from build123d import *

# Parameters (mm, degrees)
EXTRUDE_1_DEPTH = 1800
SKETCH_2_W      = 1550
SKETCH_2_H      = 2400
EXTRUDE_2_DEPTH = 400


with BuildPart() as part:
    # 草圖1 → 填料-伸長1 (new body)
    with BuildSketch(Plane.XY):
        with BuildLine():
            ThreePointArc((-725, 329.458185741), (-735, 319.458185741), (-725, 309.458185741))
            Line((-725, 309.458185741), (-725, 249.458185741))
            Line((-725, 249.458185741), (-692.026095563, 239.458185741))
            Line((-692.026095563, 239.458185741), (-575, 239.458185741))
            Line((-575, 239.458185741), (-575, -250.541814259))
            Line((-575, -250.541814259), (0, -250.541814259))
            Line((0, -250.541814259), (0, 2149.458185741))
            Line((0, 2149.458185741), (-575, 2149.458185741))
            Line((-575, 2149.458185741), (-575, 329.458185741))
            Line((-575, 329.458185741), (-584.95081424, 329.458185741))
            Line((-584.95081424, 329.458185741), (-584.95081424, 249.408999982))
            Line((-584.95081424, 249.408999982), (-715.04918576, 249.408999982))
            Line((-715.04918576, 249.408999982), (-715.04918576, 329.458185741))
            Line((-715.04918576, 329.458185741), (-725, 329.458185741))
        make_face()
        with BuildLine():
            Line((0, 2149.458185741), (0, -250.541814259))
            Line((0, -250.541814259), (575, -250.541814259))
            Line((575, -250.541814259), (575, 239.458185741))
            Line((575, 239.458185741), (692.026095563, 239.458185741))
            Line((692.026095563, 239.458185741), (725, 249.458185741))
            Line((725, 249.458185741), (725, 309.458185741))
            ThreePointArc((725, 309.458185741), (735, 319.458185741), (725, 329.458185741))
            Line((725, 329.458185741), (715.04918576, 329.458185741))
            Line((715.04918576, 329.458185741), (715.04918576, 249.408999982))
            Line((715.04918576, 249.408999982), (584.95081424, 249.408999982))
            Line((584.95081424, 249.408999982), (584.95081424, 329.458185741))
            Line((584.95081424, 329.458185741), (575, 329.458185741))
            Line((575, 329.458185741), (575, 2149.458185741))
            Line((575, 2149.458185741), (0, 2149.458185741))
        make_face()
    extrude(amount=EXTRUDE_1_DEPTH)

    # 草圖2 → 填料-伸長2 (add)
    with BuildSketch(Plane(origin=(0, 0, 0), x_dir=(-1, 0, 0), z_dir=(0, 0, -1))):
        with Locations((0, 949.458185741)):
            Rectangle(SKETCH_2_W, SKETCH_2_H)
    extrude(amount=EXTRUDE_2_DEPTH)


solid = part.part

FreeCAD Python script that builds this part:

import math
import FreeCAD as App
import Part
import Sketcher
from FreeCAD import Vector
Q = App.Units.Quantity

doc = App.newDocument("Part")
body = doc.addObject("PartDesign::Body", "Body")

sketch1 = body.newObject("Sketcher::SketchObject", "Sketch")
sketch1.AttachmentSupport = (doc.getObject("XY_Plane"), [""])
sketch1.MapMode = "FlatFace"
sketch1.addGeometry([
    Part.ArcOfCircle(Part.Circle(Vector(-725, 319, 0), Vector(0, 0, 1), 10), math.radians(90), math.radians(270)),
    Part.LineSegment(Vector(-725, 309, 0), Vector(-725, 249, 0)),
    Part.LineSegment(Vector(-725, 249, 0), Vector(-692, 239, 0)),
    Part.LineSegment(Vector(-692, 239, 0), Vector(-575, 239, 0)),
    Part.LineSegment(Vector(-575, 239, 0), Vector(-575, -251, 0)),
    Part.LineSegment(Vector(-575, -251, 0), Vector(575, -251, 0)),
    Part.LineSegment(Vector(575, -251, 0), Vector(575, 239, 0)),
    Part.LineSegment(Vector(575, 239, 0), Vector(692, 239, 0)),
    Part.LineSegment(Vector(692, 239, 0), Vector(725, 249, 0)),
    Part.LineSegment(Vector(725, 249, 0), Vector(725, 309, 0)),
    Part.ArcOfCircle(Part.Circle(Vector(725, 319, 0), Vector(0, 0, 1), 10), math.radians(-90), math.radians(90)),
    Part.LineSegment(Vector(725, 329, 0), Vector(715, 329, 0)),
    Part.LineSegment(Vector(715, 329, 0), Vector(715, 249, 0)),
    Part.LineSegment(Vector(715, 249, 0), Vector(585, 249, 0)),
    Part.LineSegment(Vector(585, 249, 0), Vector(585, 329, 0)),
    Part.LineSegment(Vector(585, 329, 0), Vector(575, 329, 0)),
    Part.LineSegment(Vector(575, 329, 0), Vector(575, 2149, 0)),
    Part.LineSegment(Vector(575, 2149, 0), Vector(-575, 2149, 0)),
    Part.LineSegment(Vector(-575, 2149, 0), Vector(-575, 329, 0)),
    Part.LineSegment(Vector(-575, 329, 0), Vector(-585, 329, 0)),
    Part.LineSegment(Vector(-585, 329, 0), Vector(-585, 249, 0)),
    Part.LineSegment(Vector(-585, 249, 0), Vector(-715, 249, 0)),
    Part.LineSegment(Vector(-715, 249, 0), Vector(-715, 329, 0)),
    Part.LineSegment(Vector(-715, 329, 0), Vector(-725, 329, 0)),
], False)
sketch1.addConstraint([
    Sketcher.Constraint("Coincident", 0, 2, 1, 1),
    Sketcher.Constraint("Coincident", 1, 2, 2, 1),
    Sketcher.Constraint("Coincident", 2, 2, 3, 1),
    Sketcher.Constraint("Coincident", 3, 2, 4, 1),
    Sketcher.Constraint("Coincident", 4, 2, 5, 1),
    Sketcher.Constraint("Coincident", 5, 2, 6, 1),
    Sketcher.Constraint("Coincident", 6, 2, 7, 1),
    Sketcher.Constraint("Coincident", 7, 2, 8, 1),
    Sketcher.Constraint("Coincident", 8, 2, 9, 1),
    Sketcher.Constraint("Coincident", 9, 2, 10, 1),
    Sketcher.Constraint("Tangent", 10, 2, 11, 1),
    Sketcher.Constraint("Coincident", 11, 2, 12, 1),
    Sketcher.Constraint("Coincident", 12, 2, 13, 1),
    Sketcher.Constraint("Coincident", 13, 2, 14, 1),
    Sketcher.Constraint("Coincident", 14, 2, 15, 1),
    Sketcher.Constraint("Coincident", 15, 2, 16, 1),
    Sketcher.Constraint("Coincident", 16, 2, 17, 1),
    Sketcher.Constraint("Coincident", 17, 2, 18, 1),
    Sketcher.Constraint("Coincident", 18, 2, 19, 1),
    Sketcher.Constraint("Coincident", 19, 2, 20, 1),
    Sketcher.Constraint("Coincident", 20, 2, 21, 1),
    Sketcher.Constraint("Coincident", 21, 2, 22, 1),
    Sketcher.Constraint("Coincident", 22, 2, 23, 1),
    Sketcher.Constraint("Tangent", 23, 2, 0, 1),
    Sketcher.Constraint("Vertical", 1),
    Sketcher.Constraint("Horizontal", 3),
    Sketcher.Constraint("Vertical", 4),
    Sketcher.Constraint("Horizontal", 5),
    Sketcher.Constraint("Vertical", 6),
    Sketcher.Constraint("Horizontal", 7),
    Sketcher.Constraint("Vertical", 9),
    Sketcher.Constraint("Horizontal", 11),
    Sketcher.Constraint("Vertical", 12),
    Sketcher.Constraint("Horizontal", 13),
    Sketcher.Constraint("Vertical", 14),
    Sketcher.Constraint("Horizontal", 15),
    Sketcher.Constraint("Vertical", 16),
    Sketcher.Constraint("Horizontal", 17),
    Sketcher.Constraint("Vertical", 18),
    Sketcher.Constraint("Horizontal", 19),
    Sketcher.Constraint("Vertical", 20),
    Sketcher.Constraint("Horizontal", 21),
    Sketcher.Constraint("Vertical", 22),
    Sketcher.Constraint("Horizontal", 23),
    Sketcher.Constraint("Equal", 0, 10),
    Sketcher.Constraint("Symmetric", 0, 3, 10, 3, -2),
    Sketcher.Constraint("Symmetric", 3, 2, 6, 2, -2),
    Sketcher.Constraint("Symmetric", 1, 2, 8, 2, -2),
    Sketcher.Constraint("Symmetric", 15, 2, 18, 2, -2),
    Sketcher.Constraint("Symmetric", 13, 2, 20, 2, -2),
    Sketcher.Constraint("Horizontal", 11, 2, 14, 2),
    Sketcher.Constraint("Vertical", 10, 3, 8, 2),
    Sketcher.Constraint("Vertical", 6, 2, 15, 2),
    Sketcher.Constraint("Equal", 3, 7),
    Sketcher.Constraint("Equal", 11, 15),
    Sketcher.Constraint("Equal", 13, 21),
    Sketcher.Constraint("Radius", 0, Q("10 mm")),
    Sketcher.Constraint("DistanceX", 5, 1, 5, 2, Q("1150 mm")),
    Sketcher.Constraint("DistanceY", 1, 2, 1, 1, Q("60 mm")),
    Sketcher.Constraint("DistanceY", 4, 2, 4, 1, Q("490 mm")),
    Sketcher.Constraint("DistanceY", 16, 1, 16, 2, Q("1820 mm")),
    Sketcher.Constraint("DistanceX", 0, 3, -1, 1, Q("725 mm")),
    Sketcher.Constraint("DistanceY", 2, 2, 1, 2, Q("10 mm")),
    Sketcher.Constraint("DistanceY", -1, 1, 12, 2, Q("249.409 mm")),
    Sketcher.Constraint("DistanceX", 13, 2, 13, 1, Q("130.098372 mm")),
    Sketcher.Constraint("DistanceX", 3, 1, 3, 2, Q("117.026096 mm")),
    Sketcher.Constraint("DistanceY", 12, 2, 12, 1, Q("80.049186 mm")),
])
pad1 = body.newObject("PartDesign::Pad", "Pad")
pad1.Profile = sketch1
pad1.Length = 1800

sketch2 = body.newObject("Sketcher::SketchObject", "Sketch001")
sketch2.AttachmentSupport = (doc.getObject("XY_Plane"), [""])
sketch2.MapMode = "FlatFace"
sketch2.addGeometry([
    Part.LineSegment(Vector(775, 2149, 0), Vector(775, -251, 0)),
    Part.LineSegment(Vector(775, -251, 0), Vector(-775, -251, 0)),
    Part.LineSegment(Vector(-775, -251, 0), Vector(-775, 2149, 0)),
    Part.LineSegment(Vector(-775, 2149, 0), Vector(775, 2149, 0)),
], False)
sketch2.addConstraint([
    Sketcher.Constraint("Coincident", 0, 2, 1, 1),
    Sketcher.Constraint("Coincident", 1, 2, 2, 1),
    Sketcher.Constraint("Coincident", 2, 2, 3, 1),
    Sketcher.Constraint("Coincident", 3, 2, 0, 1),
    Sketcher.Constraint("Vertical", 0),
    Sketcher.Constraint("Horizontal", 1),
    Sketcher.Constraint("Vertical", 2),
    Sketcher.Constraint("Horizontal", 3),
    Sketcher.Constraint("DistanceX", 1, 2, 1, 1, Q("1550 mm")),
    Sketcher.Constraint("DistanceY", 0, 2, 0, 1, Q("2400 mm")),
    Sketcher.Constraint("DistanceX", -1, 1, 0, 2, Q("775 mm")),
    Sketcher.Constraint("DistanceY", 0, 2, -1, 1, Q("250.541814 mm")),
])
pad2 = body.newObject("PartDesign::Pad", "Pad001")
pad2.Profile = sketch2
pad2.Length = 400
pad2.Reversed = True

doc.recompute()
